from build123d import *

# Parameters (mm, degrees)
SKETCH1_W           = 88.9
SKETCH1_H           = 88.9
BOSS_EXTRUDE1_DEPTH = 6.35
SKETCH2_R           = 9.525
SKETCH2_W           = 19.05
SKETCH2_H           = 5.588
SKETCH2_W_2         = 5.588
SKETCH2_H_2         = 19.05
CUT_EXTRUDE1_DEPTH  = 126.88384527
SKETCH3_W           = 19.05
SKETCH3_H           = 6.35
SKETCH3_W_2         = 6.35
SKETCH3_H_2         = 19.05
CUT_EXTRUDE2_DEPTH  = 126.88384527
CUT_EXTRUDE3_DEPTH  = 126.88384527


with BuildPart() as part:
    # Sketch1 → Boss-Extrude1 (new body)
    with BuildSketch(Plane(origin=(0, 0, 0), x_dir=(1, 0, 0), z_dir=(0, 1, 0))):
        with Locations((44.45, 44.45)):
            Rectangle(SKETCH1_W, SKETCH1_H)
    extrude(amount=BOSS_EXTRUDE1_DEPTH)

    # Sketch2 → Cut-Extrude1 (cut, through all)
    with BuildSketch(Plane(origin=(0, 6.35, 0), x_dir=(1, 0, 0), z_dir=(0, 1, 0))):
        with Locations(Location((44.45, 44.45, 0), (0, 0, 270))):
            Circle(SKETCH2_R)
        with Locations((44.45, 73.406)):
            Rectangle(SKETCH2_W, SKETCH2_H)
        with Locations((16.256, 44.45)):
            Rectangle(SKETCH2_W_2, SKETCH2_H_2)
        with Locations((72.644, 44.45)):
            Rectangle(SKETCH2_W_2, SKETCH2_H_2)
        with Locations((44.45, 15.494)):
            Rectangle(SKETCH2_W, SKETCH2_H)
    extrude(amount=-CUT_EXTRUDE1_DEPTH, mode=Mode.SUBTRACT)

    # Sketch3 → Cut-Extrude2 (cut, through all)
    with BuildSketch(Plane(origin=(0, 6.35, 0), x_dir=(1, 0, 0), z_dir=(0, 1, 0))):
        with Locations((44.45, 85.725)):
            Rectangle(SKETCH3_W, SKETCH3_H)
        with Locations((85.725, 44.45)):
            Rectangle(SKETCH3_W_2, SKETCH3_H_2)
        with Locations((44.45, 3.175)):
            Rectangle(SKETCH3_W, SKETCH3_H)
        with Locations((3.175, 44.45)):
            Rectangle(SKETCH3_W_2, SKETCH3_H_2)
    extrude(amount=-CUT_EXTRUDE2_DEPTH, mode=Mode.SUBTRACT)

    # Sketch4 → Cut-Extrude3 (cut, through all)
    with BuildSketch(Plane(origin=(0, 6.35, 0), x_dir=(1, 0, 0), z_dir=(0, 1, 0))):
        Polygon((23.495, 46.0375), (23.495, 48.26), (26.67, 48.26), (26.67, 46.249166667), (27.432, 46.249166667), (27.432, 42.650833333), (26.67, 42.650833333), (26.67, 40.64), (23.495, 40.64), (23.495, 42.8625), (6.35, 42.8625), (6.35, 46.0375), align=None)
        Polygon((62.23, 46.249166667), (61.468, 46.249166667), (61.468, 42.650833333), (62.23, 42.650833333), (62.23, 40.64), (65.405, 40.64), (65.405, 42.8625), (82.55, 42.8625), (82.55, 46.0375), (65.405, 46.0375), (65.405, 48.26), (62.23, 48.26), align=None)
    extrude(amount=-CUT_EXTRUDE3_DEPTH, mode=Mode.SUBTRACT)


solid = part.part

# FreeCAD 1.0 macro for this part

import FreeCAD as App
import Part
import Sketcher
Q = App.Units.Quantity


def add_polygon(sketch, points):
    """Adds a closed chain of lines whose ends are joined by coincident constraints."""
    first, n = sketch.GeometryCount, len(points)
    for a, b in zip(points, points[1:] + points[:1]):
        sketch.addGeometry(Part.LineSegment(App.Vector(*a, 0), App.Vector(*b, 0)), False)
    for i in range(n):
        sketch.addConstraint(Sketcher.Constraint("Coincident", first + i, 2, first + (i + 1) % n, 1))

doc = App.newDocument("Part")
params = doc.addObject("Spreadsheet::Sheet", "Params")
for row, (alias, value) in enumerate([
    ("sketch1_width", "3.5 in"),
    ("pad1_length", "0.25 in"),
    ("sketch2_diameter", "0.75 in"),
    ("sketch2_width", "0.75 in"),
    ("sketch2_width2", "0.22 in"),
    ("sketch3_width", "0.75 in"),
    ("sketch3_width2", "0.25 in"),
    ("sketch4_width", "0.03 in"),
    ("sketch4_width2", "0.675 in"),
], start=1):
    params.set(f"A{row}", alias)
    params.set(f"B{row}", "=" + value)
    params.setAlias(f"B{row}", alias)

body = doc.addObject("PartDesign::Body", "Body")

# Sketch on XZ plane
sketch1 = doc.addObject("Sketcher::SketchObject", "Sketch")
body.addObject(sketch1)
sketch1.AttachmentSupport = (doc.XZ_Plane, [""])
sketch1.MapMode = "FlatFace"
add_polygon(sketch1, [(0, -89), (0, 0), (89, 0), (89, -89)])  # lines 0-3
sketch1.addConstraint([
    Sketcher.Constraint("Vertical", 0),
    Sketcher.Constraint("Horizontal", 1),
    Sketcher.Constraint("Vertical", 2),
    Sketcher.Constraint("Horizontal", 3),
    Sketcher.Constraint("Coincident", 0, 2, -1, 1),
    Sketcher.Constraint("Equal", 3, 0),
    Sketcher.Constraint("DistanceX", 1, 1, 1, 2, Q("3.5 in")),
])
sketch1.setExpression("Constraints[10]", "Params.sketch1_width")
pad1 = doc.addObject("PartDesign::Pad", "Pad")
body.addObject(pad1)
pad1.Profile = sketch1
pad1.setExpression("Length", "Params.pad1_length")
pad1.Reversed = True

# Sketch on XZ plane
sketch2 = doc.addObject("Sketcher::SketchObject", "Sketch001")
body.addObject(sketch2)
sketch2.AttachmentSupport = (doc.XZ_Plane, [""])
sketch2.MapMode = "FlatFace"
sketch2.AttachmentOffset = App.Placement(App.Vector(0, 0, -0.25 * 25.4), App.Rotation())
sketch2.addGeometry(Part.Circle(App.Vector(44, -44, 0), App.Vector(0, 0, 1), 10), False)  # 0
add_polygon(sketch2, [(35, -76), (35, -71), (54, -71), (54, -76)])  # lines 1-4
add_polygon(sketch2, [(13, -54), (13, -35), (19, -35), (19, -54)])  # lines 5-8
add_polygon(sketch2, [(70, -54), (70, -35), (75, -35), (75, -54)])  # lines 9-12
add_polygon(sketch2, [(35, -18), (35, -13), (54, -13), (54, -18)])  # lines 13-16
sketch2.addConstraint([
    Sketcher.Constraint("Vertical", 1),
    Sketcher.Constraint("Horizontal", 2),
    Sketcher.Constraint("Vertical", 3),
    Sketcher.Constraint("Horizontal", 4),
    Sketcher.Constraint("Vertical", 5),
    Sketcher.Constraint("Horizontal", 6),
    Sketcher.Constraint("Vertical", 7),
    Sketcher.Constraint("Horizontal", 8),
    Sketcher.Constraint("Vertical", 9),
    Sketcher.Constraint("Horizontal", 10),
    Sketcher.Constraint("Vertical", 11),
    Sketcher.Constraint("Horizontal", 12),
    Sketcher.Constraint("Vertical", 13),
    Sketcher.Constraint("Horizontal", 14),
    Sketcher.Constraint("Vertical", 15),
    Sketcher.Constraint("Horizontal", 16),
    Sketcher.Constraint("Horizontal", 6, 2, 9, 2),
    Sketcher.Constraint("Horizontal", 8, 2, 11, 2),
    Sketcher.Constraint("Vertical", 4, 2, 13, 2),
    Sketcher.Constraint("Vertical", 3, 2, 14, 2),
    Sketcher.Constraint("Equal", 8, 10),
    Sketcher.Constraint("Equal", 12, 1),
    Sketcher.Constraint("Equal", 16, 5),
    Sketcher.Constraint("Equal", 3, 13),
    Sketcher.Constraint("Diameter", 0, Q("0.75 in")),
    Sketcher.Constraint("DistanceY", 3, 2, -1, 1, Q("3 in")),
    Sketcher.Constraint("DistanceX", 6, 2, 0, 3, Q("1 in")),
    Sketcher.Constraint("DistanceX", 0, 3, 9, 2, Q("1 in")),
    Sketcher.Constraint("DistanceX", 2, 1, 2, 2, Q("0.75 in")),
    Sketcher.Constraint("DistanceX", 6, 1, 6, 2, Q("0.22 in")),
    Sketcher.Constraint("DistanceY", 13, 2, -1, 1, Q("0.5 in")),
    Sketcher.Constraint("DistanceX", -1, 1, 0, 3, Q("1.75 in")),
    Sketcher.Constraint("DistanceY", 0, 3, -1, 1, Q("1.75 in")),
    Sketcher.Constraint("DistanceX", -1, 1, 1, 2, Q("1.375 in")),
    Sketcher.Constraint("DistanceY", 5, 2, -1, 1, Q("1.375 in")),
])
sketch2.setExpression("Constraints[40]", "Params.sketch2_diameter")
sketch2.setExpression("Constraints[44]", "Params.sketch2_width")
sketch2.setExpression("Constraints[45]", "Params.sketch2_width2")
pocket1 = doc.addObject("PartDesign::Pocket", "Pocket")
body.addObject(pocket1)
pocket1.Profile = sketch2
pocket1.Type = "ThroughAll"
pocket1.Reversed = True

# Sketch on XZ plane
sketch3 = doc.addObject("Sketcher::SketchObject", "Sketch002")
body.addObject(sketch3)
sketch3.AttachmentSupport = (doc.XZ_Plane, [""])
sketch3.MapMode = "FlatFace"
sketch3.AttachmentOffset = App.Placement(App.Vector(0, 0, -0.25 * 25.4), App.Rotation())
add_polygon(sketch3, [(35, -89), (35, -83), (54, -83), (54, -89)])  # lines 0-3
add_polygon(sketch3, [(83, -54), (83, -35), (89, -35), (89, -54)])  # lines 4-7
add_polygon(sketch3, [(35, -6), (35, 0), (54, 0), (54, -6)])  # lines 8-11
add_polygon(sketch3, [(0, -54), (0, -35), (6, -35), (6, -54)])  # lines 12-15
sketch3.addConstraint([
    Sketcher.Constraint("Vertical", 0),
    Sketcher.Constraint("Horizontal", 1),
    Sketcher.Constraint("Vertical", 2),
    Sketcher.Constraint("Horizontal", 3),
    Sketcher.Constraint("Vertical", 4),
    Sketcher.Constraint("Horizontal", 5),
    Sketcher.Constraint("Vertical", 6),
    Sketcher.Constraint("Horizontal", 7),
    Sketcher.Constraint("Vertical", 8),
    Sketcher.Constraint("Horizontal", 9),
    Sketcher.Constraint("Vertical", 10),
    Sketcher.Constraint("Horizontal", 11),
    Sketcher.Constraint("Vertical", 12),
    Sketcher.Constraint("Horizontal", 13),
    Sketcher.Constraint("Vertical", 14),
    Sketcher.Constraint("Horizontal", 15),
    Sketcher.Constraint("PointOnObject", 8, 2, -1),
    Sketcher.Constraint("PointOnObject", 12, 2, -2),
    Sketcher.Constraint("Horizontal", 5, 2, 12, 2),
    Sketcher.Constraint("Horizontal", 7, 2, 14, 2),
    Sketcher.Constraint("Vertical", 3, 2, 8, 2),
    Sketcher.Constraint("Vertical", 2, 2, 9, 2),
    Sketcher.Constraint("Equal", 7, 13),
    Sketcher.Constraint("Equal", 15, 0),
    Sketcher.Constraint("Equal", 11, 4),
    Sketcher.Constraint("Equal", 2, 8),
    Sketcher.Constraint("DistanceX", 1, 1, 1, 2, Q("0.75 in")),
    Sketcher.Constraint("DistanceX", 5, 1, 5, 2, Q("0.25 in")),
    Sketcher.Constraint("DistanceY", 2, 2, -1, 1, Q("3.5 in")),
    Sketcher.Constraint("DistanceX", -1, 1, 5, 2, Q("3.5 in")),
    Sketcher.Constraint("DistanceX", -1, 1, 0, 2, Q("1.375 in")),
    Sketcher.Constraint("DistanceY", 4, 2, -1, 1, Q("1.375 in")),
])
sketch3.setExpression("Constraints[42]", "Params.sketch3_width")
sketch3.setExpression("Constraints[43]", "Params.sketch3_width2")
pocket2 = doc.addObject("PartDesign::Pocket", "Pocket001")
body.addObject(pocket2)
pocket2.Profile = sketch3
pocket2.Type = "ThroughAll"
pocket2.Reversed = True

# Sketch on XZ plane
sketch4 = doc.addObject("Sketcher::SketchObject", "Sketch003")
body.addObject(sketch4)
sketch4.AttachmentSupport = (doc.XZ_Plane, [""])
sketch4.MapMode = "FlatFace"
sketch4.AttachmentOffset = App.Placement(App.Vector(0, 0, -0.25 * 25.4), App.Rotation())
add_polygon(sketch4, [(23.5, -48.3), (23.5, -46), (6.3, -46), (6.3, -42.9), (23.5, -42.9), (23.5, -40.6), (26.7, -40.6), (26.7, -42.7), (27.4, -42.7), (27.4, -46.2), (26.7, -46.2), (26.7, -48.3)])  # lines 0-11
add_polygon(sketch4, [(62.2, -46.2), (61.5, -46.2), (61.5, -42.7), (62.2, -42.7), (62.2, -40.6), (65.4, -40.6), (65.4, -42.9), (82.5, -42.9), (82.5, -46), (65.4, -46), (65.4, -48.3), (62.2, -48.3)])  # lines 12-23
sketch4.addConstraint([
    Sketcher.Constraint("Vertical", 0),
    Sketcher.Constraint("Horizontal", 1),
    Sketcher.Constraint("Vertical", 2),
    Sketcher.Constraint("Horizontal", 3),
    Sketcher.Constraint("Vertical", 4),
    Sketcher.Constraint("Horizontal", 5),
    Sketcher.Constraint("Vertical", 6),
    Sketcher.Constraint("Horizontal", 7),
    Sketcher.Constraint("Vertical", 8),
    Sketcher.Constraint("Horizontal", 9),
    Sketcher.Constraint("Vertical", 10),
    Sketcher.Constraint("Horizontal", 11),
    Sketcher.Constraint("Horizontal", 12),
    Sketcher.Constraint("Vertical", 13),
    Sketcher.Constraint("Horizontal", 14),
    Sketcher.Constraint("Vertical", 15),
    Sketcher.Constraint("Horizontal", 16),
    Sketcher.Constraint("Vertical", 17),
    Sketcher.Constraint("Horizontal", 18),
    Sketcher.Constraint("Vertical", 19),
    Sketcher.Constraint("Horizontal", 20),
    Sketcher.Constraint("Vertical", 21),
    Sketcher.Constraint("Horizontal", 22),
    Sketcher.Constraint("Vertical", 23),
    Sketcher.Constraint("Horizontal", 9, 2, 12, 2),
    Sketcher.Constraint("Horizontal", 7, 2, 13, 2),
    Sketcher.Constraint("Horizontal", 5, 2, 15, 2),
    Sketcher.Constraint("Horizontal", 3, 2, 17, 2),
    Sketcher.Constraint("Horizontal", 1, 2, 19, 2),
    Sketcher.Constraint("Horizontal", 11, 2, 21, 2),
    Sketcher.Constraint("Vertical", 0, 2, 3, 2),
    Sketcher.Constraint("Vertical", 6, 2, 9, 2),
    Sketcher.Constraint("Vertical", 17, 2, 20, 2),
    Sketcher.Constraint("Vertical", 15, 2, 22, 2),
    Sketcher.Constraint("Equal", 9, 12),
    Sketcher.Constraint("Equal", 11, 16),
    Sketcher.Constraint("Equal", 3, 18),
    Sketcher.Constraint("Equal", 22, 2),
    Sketcher.Constraint("Equal", 0, 4),
    Sketcher.Constraint("Equal", 6, 10),
    Sketcher.Constraint("DistanceX", 7, 1, 7, 2, Q("0.03 in")),
    Sketcher.Constraint("DistanceY", 4, 2, -1, 1, Q("1.6 in")),
    Sketcher.Constraint("DistanceY", 10, 2, -1, 1, Q("1.9 in")),
    Sketcher.Constraint("DistanceX", 2, 2, 5, 2, Q("0.8 in")),
    Sketcher.Constraint("DistanceX", 6, 2, 14, 2, Q("1.4 in")),
    Sketcher.Constraint("DistanceX", 1, 2, 1, 1, Q("0.675 in")),
    Sketcher.Constraint("DistanceX", -1, 1, 1, 2, Q("0.25 in")),
    Sketcher.Constraint("DistanceY", 6, 2, 6, 1, 2.010833),
])
sketch4.setExpression("Constraints[64]", "Params.sketch4_width")
sketch4.setExpression("Constraints[69]", "Params.sketch4_width2")
pocket3 = doc.addObject("PartDesign::Pocket", "Pocket002")
body.addObject(pocket3)
pocket3.Profile = sketch4
pocket3.Type = "ThroughAll"
pocket3.Reversed = True

doc.recompute()
